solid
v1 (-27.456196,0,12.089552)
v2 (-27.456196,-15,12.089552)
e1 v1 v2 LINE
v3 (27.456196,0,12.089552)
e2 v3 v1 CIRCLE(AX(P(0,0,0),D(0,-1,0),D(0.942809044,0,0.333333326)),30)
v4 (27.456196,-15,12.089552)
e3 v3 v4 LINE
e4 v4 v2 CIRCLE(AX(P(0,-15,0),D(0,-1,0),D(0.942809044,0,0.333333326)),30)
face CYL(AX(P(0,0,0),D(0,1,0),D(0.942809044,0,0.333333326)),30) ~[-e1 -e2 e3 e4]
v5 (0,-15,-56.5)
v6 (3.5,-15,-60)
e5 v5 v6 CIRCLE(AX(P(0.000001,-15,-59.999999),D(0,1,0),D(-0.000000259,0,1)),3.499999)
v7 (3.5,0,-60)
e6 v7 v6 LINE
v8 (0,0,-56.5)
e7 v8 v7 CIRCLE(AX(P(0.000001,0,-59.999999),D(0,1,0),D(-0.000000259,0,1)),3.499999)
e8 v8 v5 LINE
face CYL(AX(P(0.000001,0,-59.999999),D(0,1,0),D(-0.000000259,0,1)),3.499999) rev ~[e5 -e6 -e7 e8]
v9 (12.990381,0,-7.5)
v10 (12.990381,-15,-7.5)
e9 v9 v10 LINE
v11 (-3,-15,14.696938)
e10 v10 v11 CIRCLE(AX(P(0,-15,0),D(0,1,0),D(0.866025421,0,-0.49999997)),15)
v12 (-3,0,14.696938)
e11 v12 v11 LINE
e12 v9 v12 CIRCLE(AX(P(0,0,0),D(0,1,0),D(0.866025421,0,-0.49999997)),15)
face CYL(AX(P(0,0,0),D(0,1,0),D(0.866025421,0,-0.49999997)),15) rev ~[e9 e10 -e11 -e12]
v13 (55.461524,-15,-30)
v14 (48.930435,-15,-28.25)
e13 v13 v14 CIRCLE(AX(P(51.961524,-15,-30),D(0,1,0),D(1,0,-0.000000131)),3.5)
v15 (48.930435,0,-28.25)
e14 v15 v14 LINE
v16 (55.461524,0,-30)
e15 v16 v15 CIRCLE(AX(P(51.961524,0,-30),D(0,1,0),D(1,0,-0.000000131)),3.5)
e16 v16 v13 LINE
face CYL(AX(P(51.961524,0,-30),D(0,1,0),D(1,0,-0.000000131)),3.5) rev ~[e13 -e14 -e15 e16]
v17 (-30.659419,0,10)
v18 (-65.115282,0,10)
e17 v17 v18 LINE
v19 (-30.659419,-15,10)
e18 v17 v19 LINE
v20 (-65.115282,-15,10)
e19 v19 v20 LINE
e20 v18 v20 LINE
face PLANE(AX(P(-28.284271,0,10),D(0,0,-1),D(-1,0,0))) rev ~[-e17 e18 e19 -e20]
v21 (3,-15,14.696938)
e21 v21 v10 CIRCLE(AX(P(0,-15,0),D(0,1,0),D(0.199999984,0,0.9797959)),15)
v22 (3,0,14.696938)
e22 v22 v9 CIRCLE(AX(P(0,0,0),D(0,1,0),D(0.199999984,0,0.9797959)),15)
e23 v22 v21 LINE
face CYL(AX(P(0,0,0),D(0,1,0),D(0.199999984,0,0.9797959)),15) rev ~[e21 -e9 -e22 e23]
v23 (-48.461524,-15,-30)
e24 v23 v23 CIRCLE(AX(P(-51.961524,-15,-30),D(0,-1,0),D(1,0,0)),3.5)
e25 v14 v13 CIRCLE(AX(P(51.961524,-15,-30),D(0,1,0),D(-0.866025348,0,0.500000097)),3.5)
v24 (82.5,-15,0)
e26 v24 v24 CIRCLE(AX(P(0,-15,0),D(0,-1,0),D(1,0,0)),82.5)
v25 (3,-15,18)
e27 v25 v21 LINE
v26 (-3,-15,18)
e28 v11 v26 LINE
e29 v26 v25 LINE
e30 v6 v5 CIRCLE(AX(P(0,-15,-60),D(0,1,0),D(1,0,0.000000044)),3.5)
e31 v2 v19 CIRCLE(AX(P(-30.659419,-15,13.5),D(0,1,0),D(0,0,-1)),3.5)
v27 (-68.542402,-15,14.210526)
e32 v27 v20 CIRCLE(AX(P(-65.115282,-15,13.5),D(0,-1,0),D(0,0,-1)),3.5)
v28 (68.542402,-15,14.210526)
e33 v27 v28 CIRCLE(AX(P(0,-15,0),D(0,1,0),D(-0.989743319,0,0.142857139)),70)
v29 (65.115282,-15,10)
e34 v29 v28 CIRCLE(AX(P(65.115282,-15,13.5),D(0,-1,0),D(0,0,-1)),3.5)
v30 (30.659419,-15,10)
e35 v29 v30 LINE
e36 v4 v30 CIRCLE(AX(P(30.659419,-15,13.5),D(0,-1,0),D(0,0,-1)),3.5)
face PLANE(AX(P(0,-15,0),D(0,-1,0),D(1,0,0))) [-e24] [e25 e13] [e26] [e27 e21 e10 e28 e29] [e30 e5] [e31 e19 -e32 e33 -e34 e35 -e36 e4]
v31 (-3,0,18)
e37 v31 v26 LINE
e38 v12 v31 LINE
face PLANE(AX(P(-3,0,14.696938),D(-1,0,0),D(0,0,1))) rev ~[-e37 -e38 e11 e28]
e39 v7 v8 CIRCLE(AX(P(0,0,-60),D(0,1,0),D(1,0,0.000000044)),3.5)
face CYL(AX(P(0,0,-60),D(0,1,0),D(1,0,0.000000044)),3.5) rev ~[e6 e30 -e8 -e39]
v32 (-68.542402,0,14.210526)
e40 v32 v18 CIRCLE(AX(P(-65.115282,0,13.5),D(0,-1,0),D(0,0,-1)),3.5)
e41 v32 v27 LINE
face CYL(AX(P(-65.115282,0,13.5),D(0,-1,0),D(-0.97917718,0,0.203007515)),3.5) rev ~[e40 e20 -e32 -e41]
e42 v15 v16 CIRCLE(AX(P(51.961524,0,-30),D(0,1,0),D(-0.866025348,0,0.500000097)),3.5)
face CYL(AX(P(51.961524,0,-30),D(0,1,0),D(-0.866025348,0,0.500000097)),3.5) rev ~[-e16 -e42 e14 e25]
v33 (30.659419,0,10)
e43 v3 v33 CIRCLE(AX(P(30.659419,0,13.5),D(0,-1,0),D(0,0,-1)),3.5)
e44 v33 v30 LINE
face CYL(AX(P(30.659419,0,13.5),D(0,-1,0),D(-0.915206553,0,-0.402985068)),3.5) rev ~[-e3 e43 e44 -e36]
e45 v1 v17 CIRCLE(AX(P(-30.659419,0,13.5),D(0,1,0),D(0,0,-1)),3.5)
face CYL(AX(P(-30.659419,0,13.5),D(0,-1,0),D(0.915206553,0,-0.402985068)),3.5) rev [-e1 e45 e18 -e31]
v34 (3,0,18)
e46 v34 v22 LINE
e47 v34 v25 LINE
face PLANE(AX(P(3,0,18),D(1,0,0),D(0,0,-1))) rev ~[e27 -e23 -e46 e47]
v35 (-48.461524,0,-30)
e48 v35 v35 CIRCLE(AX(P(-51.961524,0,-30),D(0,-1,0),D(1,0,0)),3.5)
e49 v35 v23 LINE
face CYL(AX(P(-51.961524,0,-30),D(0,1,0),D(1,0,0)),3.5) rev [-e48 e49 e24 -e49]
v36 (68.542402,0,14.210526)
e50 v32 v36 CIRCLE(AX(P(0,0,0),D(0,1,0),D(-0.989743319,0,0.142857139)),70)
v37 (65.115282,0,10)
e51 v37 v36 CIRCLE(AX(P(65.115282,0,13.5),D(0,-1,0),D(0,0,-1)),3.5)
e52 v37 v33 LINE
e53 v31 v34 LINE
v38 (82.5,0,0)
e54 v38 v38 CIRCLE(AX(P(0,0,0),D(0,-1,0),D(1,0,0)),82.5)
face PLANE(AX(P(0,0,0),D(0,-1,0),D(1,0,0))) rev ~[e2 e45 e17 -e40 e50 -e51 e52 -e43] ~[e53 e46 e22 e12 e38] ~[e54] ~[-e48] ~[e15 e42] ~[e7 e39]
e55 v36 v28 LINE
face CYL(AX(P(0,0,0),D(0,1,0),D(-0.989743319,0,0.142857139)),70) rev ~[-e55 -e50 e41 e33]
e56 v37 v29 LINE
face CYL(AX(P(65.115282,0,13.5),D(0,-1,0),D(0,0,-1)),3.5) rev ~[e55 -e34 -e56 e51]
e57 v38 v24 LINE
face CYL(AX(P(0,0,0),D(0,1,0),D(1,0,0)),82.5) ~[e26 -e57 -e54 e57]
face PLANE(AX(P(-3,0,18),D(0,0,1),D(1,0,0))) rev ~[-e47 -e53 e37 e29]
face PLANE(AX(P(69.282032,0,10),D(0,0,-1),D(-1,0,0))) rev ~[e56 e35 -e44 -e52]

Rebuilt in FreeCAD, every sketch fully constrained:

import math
import FreeCAD as App
import Part
import Sketcher

V = App.Vector


def edges_at(feature, points):
    """Names of the edges that pass closest to the given points."""
    edges = feature.Shape.Edges
    near = lambda p: min(range(len(edges)), key=lambda i: edges[i].distToShape(Part.Vertex(*p))[0])
    return sorted({f"Edge{near(p) + 1}" for p in points})

doc = App.newDocument("Part")
body = doc.addObject("PartDesign::Body", "Body")

# Sketch on XZ plane
sketch1 = body.newObject("Sketcher::SketchObject", "Sketch")
sketch1.AttachmentSupport = (doc.getObject("XZ_Plane"), [""])
sketch1.MapMode = "FlatFace"
sketch1.addGeometry([
    Part.Circle(V(0, 0, 0), V(0, 0, 1), 82.5),  # 0
    Part.ArcOfCircle(Part.Circle(V(0, -60, 0), V(0, 0, 1), 3.5), math.radians(90), math.radians(360)),  # 1
    Part.ArcOfCircle(Part.Circle(V(0, -60, 0), V(0, 0, 1), 3.5), math.radians(0), math.radians(90)),  # 2
    Part.Circle(V(-52, -30, 0), V(0, 0, 1), 3.5),  # 3
    Part.ArcOfCircle(Part.Circle(V(0, 0, 0), V(0, 0, 1), 15), math.radians(-30), math.radians(78)),  # 4
    Part.ArcOfCircle(Part.Circle(V(0, 0, 0), V(0, 0, 1), 15), math.radians(102), math.radians(330)),  # 5
    Part.LineSegment(V(-3, 14.7, 0), V(-3, 18, 0)),  # 6
    Part.LineSegment(V(-3, 18, 0), V(3, 18, 0)),  # 7
    Part.LineSegment(V(3, 18, 0), V(3, 14.7, 0)),  # 8
    Part.ArcOfCircle(Part.Circle(V(52, -30, 0), V(0, 0, 1), 3.5), math.radians(0), math.radians(150)),  # 9
    Part.ArcOfCircle(Part.Circle(V(52, -30, 0), V(0, 0, 1), 3.5), math.radians(150), math.radians(360)),  # 10
    Part.ArcOfCircle(Part.Circle(V(0, 0, 0), V(0, 0, 1), 30), math.radians(19), math.radians(161)),  # 11
    Part.LineSegment(V(-28.3, 10, 0), V(-69.3, 10, 0)),  # 12
    Part.ArcOfCircle(Part.Circle(V(0, 0, 0), V(0, 0, 1), 70), math.radians(8), math.radians(172)),  # 13
    Part.LineSegment(V(69.3, 10, 0), V(28.3, 10, 0)),  # 14
], False)
sketch1.addConstraint([
    Sketcher.Constraint("Tangent", 1, 1, 2, 2),
    Sketcher.Constraint("Coincident", 2, 1, 1, 2),
    Sketcher.Constraint("Tangent", 4, 1, 5, 2),
    Sketcher.Constraint("Coincident", 5, 1, 6, 1),
    Sketcher.Constraint("Coincident", 6, 2, 7, 1),
    Sketcher.Constraint("Coincident", 7, 2, 8, 1),
    Sketcher.Constraint("Coincident", 8, 2, 4, 2),
    Sketcher.Constraint("Tangent", 9, 1, 10, 2),
    Sketcher.Constraint("Coincident", 10, 1, 9, 2),
    Sketcher.Constraint("Coincident", 11, 2, 12, 1),
    Sketcher.Constraint("Coincident", 12, 2, 13, 2),
    Sketcher.Constraint("Coincident", 13, 1, 14, 1),
    Sketcher.Constraint("Coincident", 14, 2, 11, 1),
    Sketcher.Constraint("Vertical", 6),
    Sketcher.Constraint("Horizontal", 7),
    Sketcher.Constraint("Vertical", 8),
    Sketcher.Constraint("Horizontal", 12),
    Sketcher.Constraint("Horizontal", 14),
    Sketcher.Constraint("Coincident", 0, 3, -1, 1),
    Sketcher.Constraint("Coincident", 4, 3, -1, 1),
    Sketcher.Constraint("Coincident", 11, 3, -1, 1),
    Sketcher.Constraint("Coincident", 13, 3, -1, 1),
    Sketcher.Constraint("Equal", 2, 3),
    Sketcher.Constraint("Equal", 4, 5),
    Sketcher.Constraint("Equal", 3, 9),
    Sketcher.Constraint("Symmetric", 3, 3, 9, 3, -2),
    Sketcher.Constraint("PointOnObject", 1, 3, -2),
    Sketcher.Constraint("PointOnObject", 1, 1, -2),
    Sketcher.Constraint("Horizontal", 1, 3, 2, 1),
    Sketcher.Constraint("Horizontal", 5, 1, 8, 2),
    Sketcher.Constraint("Horizontal", 10, 3, 9, 1),
    Sketcher.Constraint("Horizontal", 12, 2, 13, 1),
    Sketcher.Constraint("Diameter", 0, 165.0),
    Sketcher.Constraint("Diameter", 3, 7.0),
    Sketcher.Constraint("Radius", 4, 15.0),
    Sketcher.Constraint("Radius", 11, 30.0),
    Sketcher.Constraint("Radius", 13, 70.0),
    Sketcher.Constraint("DistanceX", 7, 1, 7, 2, 6.0),
    Sketcher.Constraint("DistanceY", 1, 3, -1, 1, 60.0),
    Sketcher.Constraint("DistanceY", 3, 3, -1, 1, 30.0),
    Sketcher.Constraint("DistanceY", -1, 1, 6, 2, 18.0),
    Sketcher.Constraint("DistanceY", -1, 1, 11, 2, 10.0),
    Sketcher.Constraint("DistanceY", 4, 1, -1, 1, 7.5),
    Sketcher.Constraint("DistanceY", 10, 1, -1, 1, 28.25),
    Sketcher.Constraint("DistanceX", 12, 2, 3, 3, 17.320508),
])
pad1 = body.newObject("PartDesign::Pad", "Pad")
pad1.Profile = sketch1
pad1.Length = 15
doc.recompute()

fillet = body.newObject("PartDesign::Fillet", "Fillet")
fillet.Base = (pad1, edges_at(pad1, [
    (69.282, -7.5, 10),
    (-69.282, -7.5, 10),
    (-28.284, -7.5, 10),
    (28.284, -7.5, 10),
]))
fillet.Radius = 3.5

doc.recompute()
